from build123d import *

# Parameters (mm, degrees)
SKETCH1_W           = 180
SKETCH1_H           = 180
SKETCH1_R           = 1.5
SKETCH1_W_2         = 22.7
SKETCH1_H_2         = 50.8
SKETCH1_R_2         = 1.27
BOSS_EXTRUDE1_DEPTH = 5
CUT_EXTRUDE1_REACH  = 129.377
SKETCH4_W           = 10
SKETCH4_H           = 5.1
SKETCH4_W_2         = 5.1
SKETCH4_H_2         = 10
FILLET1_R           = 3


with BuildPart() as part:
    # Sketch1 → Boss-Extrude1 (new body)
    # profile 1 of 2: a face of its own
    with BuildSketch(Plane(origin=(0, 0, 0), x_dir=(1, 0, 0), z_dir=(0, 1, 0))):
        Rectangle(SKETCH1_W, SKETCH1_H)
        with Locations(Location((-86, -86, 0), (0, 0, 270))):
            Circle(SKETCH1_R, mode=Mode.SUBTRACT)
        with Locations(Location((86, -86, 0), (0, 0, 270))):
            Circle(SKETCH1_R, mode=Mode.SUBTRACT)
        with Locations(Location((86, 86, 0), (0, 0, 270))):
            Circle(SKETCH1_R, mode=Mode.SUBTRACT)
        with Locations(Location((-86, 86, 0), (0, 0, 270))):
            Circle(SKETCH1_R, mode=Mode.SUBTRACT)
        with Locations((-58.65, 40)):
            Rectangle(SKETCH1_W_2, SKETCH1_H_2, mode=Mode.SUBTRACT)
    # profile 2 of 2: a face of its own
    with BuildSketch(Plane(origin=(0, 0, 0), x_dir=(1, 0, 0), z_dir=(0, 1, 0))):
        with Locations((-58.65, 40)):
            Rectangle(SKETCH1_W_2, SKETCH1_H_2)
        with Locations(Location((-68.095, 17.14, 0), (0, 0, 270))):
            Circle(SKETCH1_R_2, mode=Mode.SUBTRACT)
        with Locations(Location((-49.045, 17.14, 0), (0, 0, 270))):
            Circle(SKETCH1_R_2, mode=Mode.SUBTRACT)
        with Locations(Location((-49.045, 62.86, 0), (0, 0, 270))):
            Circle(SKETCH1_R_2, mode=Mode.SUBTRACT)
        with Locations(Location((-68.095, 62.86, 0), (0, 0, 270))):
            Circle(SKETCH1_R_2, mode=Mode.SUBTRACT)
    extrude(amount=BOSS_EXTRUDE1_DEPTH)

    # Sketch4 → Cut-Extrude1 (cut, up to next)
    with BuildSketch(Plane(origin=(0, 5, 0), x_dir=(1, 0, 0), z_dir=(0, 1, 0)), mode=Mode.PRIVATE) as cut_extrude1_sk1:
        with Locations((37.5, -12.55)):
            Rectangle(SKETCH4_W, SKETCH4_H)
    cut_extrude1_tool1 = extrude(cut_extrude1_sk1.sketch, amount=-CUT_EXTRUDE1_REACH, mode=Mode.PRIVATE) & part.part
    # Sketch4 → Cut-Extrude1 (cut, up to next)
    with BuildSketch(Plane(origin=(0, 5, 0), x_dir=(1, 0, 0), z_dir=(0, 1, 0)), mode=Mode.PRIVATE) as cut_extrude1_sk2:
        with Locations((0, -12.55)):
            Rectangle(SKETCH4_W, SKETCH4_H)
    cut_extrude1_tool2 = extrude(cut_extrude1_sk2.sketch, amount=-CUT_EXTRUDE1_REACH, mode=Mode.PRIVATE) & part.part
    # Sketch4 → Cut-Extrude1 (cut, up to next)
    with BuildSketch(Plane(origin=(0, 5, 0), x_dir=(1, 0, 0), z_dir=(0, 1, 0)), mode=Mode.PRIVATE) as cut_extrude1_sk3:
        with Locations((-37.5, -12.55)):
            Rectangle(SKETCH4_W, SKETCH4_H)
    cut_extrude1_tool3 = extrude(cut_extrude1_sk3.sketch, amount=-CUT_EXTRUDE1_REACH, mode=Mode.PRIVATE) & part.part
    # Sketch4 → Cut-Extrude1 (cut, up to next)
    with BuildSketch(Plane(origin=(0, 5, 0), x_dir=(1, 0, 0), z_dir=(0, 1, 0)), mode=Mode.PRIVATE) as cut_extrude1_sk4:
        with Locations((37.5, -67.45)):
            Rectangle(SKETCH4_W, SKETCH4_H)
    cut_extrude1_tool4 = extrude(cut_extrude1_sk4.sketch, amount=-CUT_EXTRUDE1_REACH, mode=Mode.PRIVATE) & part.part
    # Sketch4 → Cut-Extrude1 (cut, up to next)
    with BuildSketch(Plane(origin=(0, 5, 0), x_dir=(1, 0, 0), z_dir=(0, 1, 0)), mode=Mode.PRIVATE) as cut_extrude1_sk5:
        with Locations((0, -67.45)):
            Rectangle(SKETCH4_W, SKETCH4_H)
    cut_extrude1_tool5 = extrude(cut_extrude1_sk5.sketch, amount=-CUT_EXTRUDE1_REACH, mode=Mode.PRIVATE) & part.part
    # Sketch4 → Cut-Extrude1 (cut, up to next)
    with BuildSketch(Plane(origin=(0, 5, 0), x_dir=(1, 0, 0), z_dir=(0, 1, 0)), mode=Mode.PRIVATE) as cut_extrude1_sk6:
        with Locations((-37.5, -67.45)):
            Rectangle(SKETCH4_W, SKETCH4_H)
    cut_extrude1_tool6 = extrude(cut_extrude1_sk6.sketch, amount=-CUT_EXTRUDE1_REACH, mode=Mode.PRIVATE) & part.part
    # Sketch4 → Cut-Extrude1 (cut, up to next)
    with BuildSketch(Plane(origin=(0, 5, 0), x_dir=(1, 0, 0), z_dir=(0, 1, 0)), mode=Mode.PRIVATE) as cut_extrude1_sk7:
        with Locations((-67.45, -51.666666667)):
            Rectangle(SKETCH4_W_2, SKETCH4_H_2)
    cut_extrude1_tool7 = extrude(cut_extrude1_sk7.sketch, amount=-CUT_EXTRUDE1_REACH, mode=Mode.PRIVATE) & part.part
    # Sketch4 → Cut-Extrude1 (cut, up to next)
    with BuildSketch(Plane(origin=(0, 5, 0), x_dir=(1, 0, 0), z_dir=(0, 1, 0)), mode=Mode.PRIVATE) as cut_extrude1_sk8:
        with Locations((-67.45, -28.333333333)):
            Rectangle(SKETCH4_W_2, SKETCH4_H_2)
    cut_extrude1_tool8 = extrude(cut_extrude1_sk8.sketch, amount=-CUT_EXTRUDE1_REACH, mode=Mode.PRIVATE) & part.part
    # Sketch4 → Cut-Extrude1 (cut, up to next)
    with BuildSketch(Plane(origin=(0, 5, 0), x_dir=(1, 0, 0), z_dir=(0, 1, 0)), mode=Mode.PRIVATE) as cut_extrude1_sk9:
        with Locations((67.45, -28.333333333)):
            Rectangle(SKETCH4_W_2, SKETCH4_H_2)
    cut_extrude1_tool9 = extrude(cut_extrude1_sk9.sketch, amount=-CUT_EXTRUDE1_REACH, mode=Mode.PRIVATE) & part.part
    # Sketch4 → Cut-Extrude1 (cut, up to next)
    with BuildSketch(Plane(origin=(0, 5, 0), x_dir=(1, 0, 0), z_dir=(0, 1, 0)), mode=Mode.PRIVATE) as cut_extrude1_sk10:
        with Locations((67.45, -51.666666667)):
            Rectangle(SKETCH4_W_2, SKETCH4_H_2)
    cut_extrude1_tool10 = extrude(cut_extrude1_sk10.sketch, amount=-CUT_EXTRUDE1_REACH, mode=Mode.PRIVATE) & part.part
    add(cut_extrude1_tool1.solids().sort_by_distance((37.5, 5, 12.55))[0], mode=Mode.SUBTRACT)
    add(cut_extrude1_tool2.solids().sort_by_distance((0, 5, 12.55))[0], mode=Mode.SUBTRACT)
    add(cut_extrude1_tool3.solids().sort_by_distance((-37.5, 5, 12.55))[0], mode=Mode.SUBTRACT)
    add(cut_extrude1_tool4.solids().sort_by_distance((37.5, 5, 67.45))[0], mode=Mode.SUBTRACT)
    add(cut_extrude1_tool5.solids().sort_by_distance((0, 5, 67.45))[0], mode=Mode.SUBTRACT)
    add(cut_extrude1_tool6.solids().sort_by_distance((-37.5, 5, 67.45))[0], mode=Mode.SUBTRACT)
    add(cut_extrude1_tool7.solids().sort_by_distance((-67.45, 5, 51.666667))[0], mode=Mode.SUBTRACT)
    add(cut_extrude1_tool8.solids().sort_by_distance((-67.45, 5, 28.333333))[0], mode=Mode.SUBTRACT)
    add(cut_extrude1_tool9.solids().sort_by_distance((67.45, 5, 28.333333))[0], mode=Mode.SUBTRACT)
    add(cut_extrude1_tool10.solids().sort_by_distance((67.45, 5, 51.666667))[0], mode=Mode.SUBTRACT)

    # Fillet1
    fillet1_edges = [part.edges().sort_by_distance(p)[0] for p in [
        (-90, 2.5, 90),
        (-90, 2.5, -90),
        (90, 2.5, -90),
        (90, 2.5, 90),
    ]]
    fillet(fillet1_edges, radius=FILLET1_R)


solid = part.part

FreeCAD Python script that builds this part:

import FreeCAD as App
import Part
import Sketcher
from FreeCAD import Vector


def edges_at(feature, points):
    """Names of the edges that pass closest to the given points."""
    edges = feature.Shape.Edges
    near = lambda p: min(range(len(edges)), key=lambda i: edges[i].distToShape(Part.Vertex(*p))[0])
    return sorted({f"Edge{near(p) + 1}" for p in points})


def add_polygon(sketch, points):
    """Adds a closed chain of lines whose ends are joined by coincident constraints."""
    first, n = sketch.GeometryCount, len(points)
    for a, b in zip(points, points[1:] + points[:1]):
        sketch.addGeometry(Part.LineSegment(App.Vector(*a, 0), App.Vector(*b, 0)), False)
    for i in range(n):
        sketch.addConstraint(Sketcher.Constraint("Coincident", first + i, 2, first + (i + 1) % n, 1))

doc = App.newDocument("Part")
params = doc.addObject("Spreadsheet::Sheet", "Params")
for row, (alias, value) in enumerate([
    ("sketch1_diameter", "3 mm"),
    ("sketch1_diameter2", "2.54 mm"),
    ("sketch1_width", "180 mm"),
    ("pad1_length", "5 mm"),
    ("sketch2_width", "10 mm"),
    ("sketch2_height", "5.1 mm"),
    ("sketch3_width", "10 mm"),
    ("sketch3_height", "5.1 mm"),
    ("sketch4_width", "10 mm"),
    ("sketch4_height", "5.1 mm"),
    ("sketch5_width", "10 mm"),
    ("sketch5_height", "5.1 mm"),
    ("sketch6_width", "10 mm"),
    ("sketch6_height", "5.1 mm"),
    ("sketch7_width", "10 mm"),
    ("sketch7_height", "5.1 mm"),
    ("sketch8_height", "10 mm"),
    ("sketch8_width", "5.1 mm"),
    ("sketch9_height", "10 mm"),
    ("sketch9_width", "5.1 mm"),
    ("sketch10_height", "10 mm"),
    ("sketch10_width", "5.1 mm"),
    ("sketch11_height", "10 mm"),
    ("sketch11_width", "5.1 mm"),
    ("fillet_radius", "3 mm"),
], start=1):
    params.set(f"A{row}", alias)
    params.set(f"B{row}", "=" + value)
    params.setAlias(f"B{row}", alias)

body = doc.addObject("PartDesign::Body", "Body")

sketch1 = body.newObject("Sketcher::SketchObject", "Sketch")
sketch1.AttachmentSupport = (doc.getObject("XZ_Plane"), [""])
sketch1.MapMode = "FlatFace"
add_polygon(sketch1, [(-90, -90), (-90, 90), (90, 90), (90, -90)])
sketch1.addGeometry(Part.Circle(Vector(-86, 86, 0), Vector(0, 0, 1), 1.5), False)
sketch1.addGeometry(Part.Circle(Vector(86, 86, 0), Vector(0, 0, 1), 1.5), False)
sketch1.addGeometry(Part.Circle(Vector(-86, -86, 0), Vector(0, 0, 1), 1.5), False)
sketch1.addGeometry(Part.Circle(Vector(86, -86, 0), Vector(0, 0, 1), 1.5), False)
sketch1.addGeometry(Part.Circle(Vector(-68.1, -17.1, 0), Vector(0, 0, 1), 1.3), False)
sketch1.addGeometry(Part.Circle(Vector(-49, -62.9, 0), Vector(0, 0, 1), 1.3), False)
sketch1.addGeometry(Part.Circle(Vector(-49, -17.1, 0), Vector(0, 0, 1), 1.3), False)
sketch1.addGeometry(Part.Circle(Vector(-68.1, -62.9, 0), Vector(0, 0, 1), 1.3), False)
sketch1.addConstraint(Sketcher.Constraint("Vertical", 0))
sketch1.addConstraint(Sketcher.Constraint("Horizontal", 1))
sketch1.addConstraint(Sketcher.Constraint("Vertical", 2))
sketch1.addConstraint(Sketcher.Constraint("Horizontal", 3))
sketch1.addConstraint(Sketcher.Constraint("Equal", 4, 5))
sketch1.addConstraint(Sketcher.Constraint("Equal", 5, 6))
sketch1.addConstraint(Sketcher.Constraint("Equal", 6, 7))
sketch1.addConstraint(Sketcher.Constraint("Equal", 8, 9))
sketch1.addConstraint(Sketcher.Constraint("Equal", 9, 10))
sketch1.addConstraint(Sketcher.Constraint("Equal", 10, 11))
sketch1.addConstraint(Sketcher.Constraint("Symmetric", 5, 3, 6, 3, -1, 1))
sketch1.addConstraint(Sketcher.Constraint("Symmetric", 4, 3, 7, 3, -1, 1))
sketch1.addConstraint(Sketcher.Constraint("Symmetric", 0, 2, 2, 2, -1, 1))
sketch1.addConstraint(Sketcher.Constraint("Symmetric", 4, 3, 5, 3, -2))
sketch1.addConstraint(Sketcher.Constraint("Horizontal", 8, 3, 10, 3))
sketch1.addConstraint(Sketcher.Constraint("Horizontal", 9, 3, 11, 3))
sketch1.addConstraint(Sketcher.Constraint("Vertical", 9, 3, 10, 3))
sketch1.addConstraint(Sketcher.Constraint("Vertical", 8, 3, 11, 3))
sketch1.addConstraint(Sketcher.Constraint("Equal", 3, 0))
sketch1.addConstraint(Sketcher.Constraint("Diameter", 4, 3.0))
sketch1.addConstraint(Sketcher.Constraint("Diameter", 8, 2.54))
sketch1.addConstraint(Sketcher.Constraint("DistanceX", 1, 1, 1, 2, 180.0))
sketch1.addConstraint(Sketcher.Constraint("DistanceX", 4, 3, -1, 1, 86.0))
sketch1.addConstraint(Sketcher.Constraint("DistanceY", -1, 1, 4, 3, 86.0))
sketch1.addConstraint(Sketcher.Constraint("DistanceY", 8, 3, -1, 1, 17.14))
sketch1.addConstraint(Sketcher.Constraint("DistanceY", 9, 3, -1, 1, 62.86))
sketch1.addConstraint(Sketcher.Constraint("DistanceX", 8, 3, 9, 3, 19.05))
sketch1.addConstraint(Sketcher.Constraint("DistanceX", 8, 3, -1, 1, 68.095))
sketch1.setExpression("Constraints[23]", "Params.sketch1_diameter")
sketch1.setExpression("Constraints[24]", "Params.sketch1_diameter2")
sketch1.setExpression("Constraints[25]", "Params.sketch1_width")
pad1 = body.newObject("PartDesign::Pad", "Pad")
pad1.Profile = sketch1
pad1.setExpression("Length", "Params.pad1_length")
pad1.Reversed = True

sketch2 = body.newObject("Sketcher::SketchObject", "Sketch001")
sketch2.AttachmentSupport = (doc.getObject("XZ_Plane"), [""])
sketch2.MapMode = "FlatFace"
sketch2.AttachmentOffset = App.Placement(Vector(0, 0, -5), App.Rotation())
add_polygon(sketch2, [(32, 10), (32, 15), (42, 15), (42, 10)])
sketch2.addConstraint(Sketcher.Constraint("Vertical", 0))
sketch2.addConstraint(Sketcher.Constraint("Horizontal", 1))
sketch2.addConstraint(Sketcher.Constraint("Vertical", 2))
sketch2.addConstraint(Sketcher.Constraint("Horizontal", 3))
sketch2.addConstraint(Sketcher.Constraint("DistanceX", 1, 1, 1, 2, 10.0))
sketch2.addConstraint(Sketcher.Constraint("DistanceY", 0, 1, 0, 2, 5.1))
sketch2.addConstraint(Sketcher.Constraint("DistanceY", -1, 1, 2, 2, 10.0))
sketch2.addConstraint(Sketcher.Constraint("DistanceX", -1, 1, 0, 2, 32.5))
sketch2.setExpression("Constraints[8]", "Params.sketch2_width")
sketch2.setExpression("Constraints[9]", "Params.sketch2_height")
pocket1 = body.newObject("PartDesign::Pocket", "Pocket")
pocket1.Profile = sketch2
pocket1.Type = "UpToFirst"
pocket1.Reversed = True

sketch3 = body.newObject("Sketcher::SketchObject", "Sketch002")
sketch3.AttachmentSupport = (doc.getObject("XZ_Plane"), [""])
sketch3.MapMode = "FlatFace"
sketch3.AttachmentOffset = App.Placement(Vector(0, 0, -5), App.Rotation())
add_polygon(sketch3, [(-5, 10), (-5, 15), (5, 15), (5, 10)])
sketch3.addConstraint(Sketcher.Constraint("Vertical", 0))
sketch3.addConstraint(Sketcher.Constraint("Horizontal", 1))
sketch3.addConstraint(Sketcher.Constraint("Vertical", 2))
sketch3.addConstraint(Sketcher.Constraint("Horizontal", 3))
sketch3.addConstraint(Sketcher.Constraint("DistanceX", 1, 1, 1, 2, 10.0))
sketch3.addConstraint(Sketcher.Constraint("DistanceY", 0, 1, 0, 2, 5.1))
sketch3.addConstraint(Sketcher.Constraint("DistanceX", 0, 2, -1, 1, 5.0))
sketch3.addConstraint(Sketcher.Constraint("DistanceY", -1, 1, 2, 2, 10.0))
sketch3.setExpression("Constraints[8]", "Params.sketch3_width")
sketch3.setExpression("Constraints[9]", "Params.sketch3_height")
pocket2 = body.newObject("PartDesign::Pocket", "Pocket001")
pocket2.Profile = sketch3
pocket2.Type = "UpToFirst"
pocket2.Reversed = True

sketch4 = body.newObject("Sketcher::SketchObject", "Sketch003")
sketch4.AttachmentSupport = (doc.getObject("XZ_Plane"), [""])
sketch4.MapMode = "FlatFace"
sketch4.AttachmentOffset = App.Placement(Vector(0, 0, -5), App.Rotation())
add_polygon(sketch4, [(-42, 10), (-42, 15), (-32, 15), (-32, 10)])
sketch4.addConstraint(Sketcher.Constraint("Vertical", 0))
sketch4.addConstraint(Sketcher.Constraint("Horizontal", 1))
sketch4.addConstraint(Sketcher.Constraint("Vertical", 2))
sketch4.addConstraint(Sketcher.Constraint("Horizontal", 3))
sketch4.addConstraint(Sketcher.Constraint("DistanceX", 1, 1, 1, 2, 10.0))
sketch4.addConstraint(Sketcher.Constraint("DistanceY", 0, 1, 0, 2, 5.1))
sketch4.addConstraint(Sketcher.Constraint("DistanceY", -1, 1, 2, 2, 10.0))
sketch4.addConstraint(Sketcher.Constraint("DistanceX", 0, 2, -1, 1, 42.5))
sketch4.setExpression("Constraints[8]", "Params.sketch4_width")
sketch4.setExpression("Constraints[9]", "Params.sketch4_height")
pocket3 = body.newObject("PartDesign::Pocket", "Pocket002")
pocket3.Profile = sketch4
pocket3.Type = "UpToFirst"
pocket3.Reversed = True

sketch5 = body.newObject("Sketcher::SketchObject", "Sketch004")
sketch5.AttachmentSupport = (doc.getObject("XZ_Plane"), [""])
sketch5.MapMode = "FlatFace"
sketch5.AttachmentOffset = App.Placement(Vector(0, 0, -5), App.Rotation())
add_polygon(sketch5, [(32, 65), (32, 70), (42, 70), (42, 65)])
sketch5.addConstraint(Sketcher.Constraint("Vertical", 0))
sketch5.addConstraint(Sketcher.Constraint("Horizontal", 1))
sketch5.addConstraint(Sketcher.Constraint("Vertical", 2))
sketch5.addConstraint(Sketcher.Constraint("Horizontal", 3))
sketch5.addConstraint(Sketcher.Constraint("DistanceX", 1, 1, 1, 2, 10.0))
sketch5.addConstraint(Sketcher.Constraint("DistanceY", 0, 1, 0, 2, 5.1))
sketch5.addConstraint(Sketcher.Constraint("DistanceY", -1, 1, 0, 2, 70.0))
sketch5.addConstraint(Sketcher.Constraint("DistanceX", -1, 1, 0, 2, 32.5))
sketch5.setExpression("Constraints[8]", "Params.sketch5_width")
sketch5.setExpression("Constraints[9]", "Params.sketch5_height")
pocket4 = body.newObject("PartDesign::Pocket", "Pocket003")
pocket4.Profile = sketch5
pocket4.Type = "UpToFirst"
pocket4.Reversed = True

sketch6 = body.newObject("Sketcher::SketchObject", "Sketch005")
sketch6.AttachmentSupport = (doc.getObject("XZ_Plane"), [""])
sketch6.MapMode = "FlatFace"
sketch6.AttachmentOffset = App.Placement(Vector(0, 0, -5), App.Rotation())
add_polygon(sketch6, [(-5, 65), (-5, 70), (5, 70), (5, 65)])
sketch6.addConstraint(Sketcher.Constraint("Vertical", 0))
sketch6.addConstraint(Sketcher.Constraint("Horizontal", 1))
sketch6.addConstraint(Sketcher.Constraint("Vertical", 2))
sketch6.addConstraint(Sketcher.Constraint("Horizontal", 3))
sketch6.addConstraint(Sketcher.Constraint("DistanceX", 1, 1, 1, 2, 10.0))
sketch6.addConstraint(Sketcher.Constraint("DistanceY", 0, 1, 0, 2, 5.1))
sketch6.addConstraint(Sketcher.Constraint("DistanceX", 0, 2, -1, 1, 5.0))
sketch6.addConstraint(Sketcher.Constraint("DistanceY", -1, 1, 0, 2, 70.0))
sketch6.setExpression("Constraints[8]", "Params.sketch6_width")
sketch6.setExpression("Constraints[9]", "Params.sketch6_height")
pocket5 = body.newObject("PartDesign::Pocket", "Pocket004")
pocket5.Profile = sketch6
pocket5.Type = "UpToFirst"
pocket5.Reversed = True

sketch7 = body.newObject("Sketcher::SketchObject", "Sketch006")
sketch7.AttachmentSupport = (doc.getObject("XZ_Plane"), [""])
sketch7.MapMode = "FlatFace"
sketch7.AttachmentOffset = App.Placement(Vector(0, 0, -5), App.Rotation())
add_polygon(sketch7, [(-42, 65), (-42, 70), (-32, 70), (-32, 65)])
sketch7.addConstraint(Sketcher.Constraint("Vertical", 0))
sketch7.addConstraint(Sketcher.Constraint("Horizontal", 1))
sketch7.addConstraint(Sketcher.Constraint("Vertical", 2))
sketch7.addConstraint(Sketcher.Constraint("Horizontal", 3))
sketch7.addConstraint(Sketcher.Constraint("DistanceX", 1, 1, 1, 2, 10.0))
sketch7.addConstraint(Sketcher.Constraint("DistanceY", 0, 1, 0, 2, 5.1))
sketch7.addConstraint(Sketcher.Constraint("DistanceY", -1, 1, 0, 2, 70.0))
sketch7.addConstraint(Sketcher.Constraint("DistanceX", 0, 2, -1, 1, 42.5))
sketch7.setExpression("Constraints[8]", "Params.sketch7_width")
sketch7.setExpression("Constraints[9]", "Params.sketch7_height")
pocket6 = body.newObject("PartDesign::Pocket", "Pocket005")
pocket6.Profile = sketch7
pocket6.Type = "UpToFirst"
pocket6.Reversed = True

sketch8 = body.newObject("Sketcher::SketchObject", "Sketch007")
sketch8.AttachmentSupport = (doc.getObject("XZ_Plane"), [""])
sketch8.MapMode = "FlatFace"
sketch8.AttachmentOffset = App.Placement(Vector(0, 0, -5), App.Rotation())
add_polygon(sketch8, [(-70, 47), (-70, 57), (-65, 57), (-65, 47)])
sketch8.addConstraint(Sketcher.Constraint("Vertical", 0))
sketch8.addConstraint(Sketcher.Constraint("Horizontal", 1))
sketch8.addConstraint(Sketcher.Constraint("Vertical", 2))
sketch8.addConstraint(Sketcher.Constraint("Horizontal", 3))
sketch8.addConstraint(Sketcher.Constraint("DistanceY", 0, 1, 0, 2, 10.0))
sketch8.addConstraint(Sketcher.Constraint("DistanceX", 1, 1, 1, 2, 5.1))
sketch8.addConstraint(Sketcher.Constraint("DistanceX", 0, 2, -1, 1, 70.0))
sketch8.addConstraint(Sketcher.Constraint("DistanceY", -1, 1, 0, 2, 56.666667))
sketch8.setExpression("Constraints[8]", "Params.sketch8_height")
sketch8.setExpression("Constraints[9]", "Params.sketch8_width")
pocket7 = body.newObject("PartDesign::Pocket", "Pocket006")
pocket7.Profile = sketch8
pocket7.Type = "UpToFirst"
pocket7.Reversed = True

sketch9 = body.newObject("Sketcher::SketchObject", "Sketch008")
sketch9.AttachmentSupport = (doc.getObject("XZ_Plane"), [""])
sketch9.MapMode = "FlatFace"
sketch9.AttachmentOffset = App.Placement(Vector(0, 0, -5), App.Rotation())
add_polygon(sketch9, [(-70, 23), (-70, 33), (-65, 33), (-65, 23)])
sketch9.addConstraint(Sketcher.Constraint("Vertical", 0))
sketch9.addConstraint(Sketcher.Constraint("Horizontal", 1))
sketch9.addConstraint(Sketcher.Constraint("Vertical", 2))
sketch9.addConstraint(Sketcher.Constraint("Horizontal", 3))
sketch9.addConstraint(Sketcher.Constraint("DistanceY", 0, 1, 0, 2, 10.0))
sketch9.addConstraint(Sketcher.Constraint("DistanceX", 1, 1, 1, 2, 5.1))
sketch9.addConstraint(Sketcher.Constraint("DistanceX", 0, 2, -1, 1, 70.0))
sketch9.addConstraint(Sketcher.Constraint("DistanceY", -1, 1, 0, 2, 33.333333))
sketch9.setExpression("Constraints[8]", "Params.sketch9_height")
sketch9.setExpression("Constraints[9]", "Params.sketch9_width")
pocket8 = body.newObject("PartDesign::Pocket", "Pocket007")
pocket8.Profile = sketch9
pocket8.Type = "UpToFirst"
pocket8.Reversed = True

sketch10 = body.newObject("Sketcher::SketchObject", "Sketch009")
sketch10.AttachmentSupport = (doc.getObject("XZ_Plane"), [""])
sketch10.MapMode = "FlatFace"
sketch10.AttachmentOffset = App.Placement(Vector(0, 0, -5), App.Rotation())
add_polygon(sketch10, [(65, 23), (65, 33), (70, 33), (70, 23)])
sketch10.addConstraint(Sketcher.Constraint("Vertical", 0))
sketch10.addConstraint(Sketcher.Constraint("Horizontal", 1))
sketch10.addConstraint(Sketcher.Constraint("Vertical", 2))
sketch10.addConstraint(Sketcher.Constraint("Horizontal", 3))
sketch10.addConstraint(Sketcher.Constraint("DistanceY", 0, 1, 0, 2, 10.0))
sketch10.addConstraint(Sketcher.Constraint("DistanceX", 1, 1, 1, 2, 5.1))
sketch10.addConstraint(Sketcher.Constraint("DistanceX", -1, 1, 1, 2, 70.0))
sketch10.addConstraint(Sketcher.Constraint("DistanceY", -1, 1, 0, 2, 33.333333))
sketch10.setExpression("Constraints[8]", "Params.sketch10_height")
sketch10.setExpression("Constraints[9]", "Params.sketch10_width")
pocket9 = body.newObject("PartDesign::Pocket", "Pocket008")
pocket9.Profile = sketch10
pocket9.Type = "UpToFirst"
pocket9.Reversed = True

sketch11 = body.newObject("Sketcher::SketchObject", "Sketch010")
sketch11.AttachmentSupport = (doc.getObject("XZ_Plane"), [""])
sketch11.MapMode = "FlatFace"
sketch11.AttachmentOffset = App.Placement(Vector(0, 0, -5), App.Rotation())
add_polygon(sketch11, [(65, 47), (65, 57), (70, 57), (70, 47)])
sketch11.addConstraint(Sketcher.Constraint("Vertical", 0))
sketch11.addConstraint(Sketcher.Constraint("Horizontal", 1))
sketch11.addConstraint(Sketcher.Constraint("Vertical", 2))
sketch11.addConstraint(Sketcher.Constraint("Horizontal", 3))
sketch11.addConstraint(Sketcher.Constraint("DistanceY", 0, 1, 0, 2, 10.0))
sketch11.addConstraint(Sketcher.Constraint("DistanceX", 1, 1, 1, 2, 5.1))
sketch11.addConstraint(Sketcher.Constraint("DistanceX", -1, 1, 1, 2, 70.0))
sketch11.addConstraint(Sketcher.Constraint("DistanceY", -1, 1, 0, 2, 56.666667))
sketch11.setExpression("Constraints[8]", "Params.sketch11_height")
sketch11.setExpression("Constraints[9]", "Params.sketch11_width")
pocket10 = body.newObject("PartDesign::Pocket", "Pocket009")
pocket10.Profile = sketch11
pocket10.Type = "UpToFirst"
pocket10.Reversed = True
doc.recompute()

fillet = body.newObject("PartDesign::Fillet", "Fillet")
fillet.Base = (pocket10, edges_at(pocket10, [
    (-90, 2.5, 90),
    (-90, 2.5, -90),
    (90, 2.5, -90),
    (90, 2.5, 90),
]))
fillet.setExpression("Radius", "Params.fillet_radius")

doc.recompute()
